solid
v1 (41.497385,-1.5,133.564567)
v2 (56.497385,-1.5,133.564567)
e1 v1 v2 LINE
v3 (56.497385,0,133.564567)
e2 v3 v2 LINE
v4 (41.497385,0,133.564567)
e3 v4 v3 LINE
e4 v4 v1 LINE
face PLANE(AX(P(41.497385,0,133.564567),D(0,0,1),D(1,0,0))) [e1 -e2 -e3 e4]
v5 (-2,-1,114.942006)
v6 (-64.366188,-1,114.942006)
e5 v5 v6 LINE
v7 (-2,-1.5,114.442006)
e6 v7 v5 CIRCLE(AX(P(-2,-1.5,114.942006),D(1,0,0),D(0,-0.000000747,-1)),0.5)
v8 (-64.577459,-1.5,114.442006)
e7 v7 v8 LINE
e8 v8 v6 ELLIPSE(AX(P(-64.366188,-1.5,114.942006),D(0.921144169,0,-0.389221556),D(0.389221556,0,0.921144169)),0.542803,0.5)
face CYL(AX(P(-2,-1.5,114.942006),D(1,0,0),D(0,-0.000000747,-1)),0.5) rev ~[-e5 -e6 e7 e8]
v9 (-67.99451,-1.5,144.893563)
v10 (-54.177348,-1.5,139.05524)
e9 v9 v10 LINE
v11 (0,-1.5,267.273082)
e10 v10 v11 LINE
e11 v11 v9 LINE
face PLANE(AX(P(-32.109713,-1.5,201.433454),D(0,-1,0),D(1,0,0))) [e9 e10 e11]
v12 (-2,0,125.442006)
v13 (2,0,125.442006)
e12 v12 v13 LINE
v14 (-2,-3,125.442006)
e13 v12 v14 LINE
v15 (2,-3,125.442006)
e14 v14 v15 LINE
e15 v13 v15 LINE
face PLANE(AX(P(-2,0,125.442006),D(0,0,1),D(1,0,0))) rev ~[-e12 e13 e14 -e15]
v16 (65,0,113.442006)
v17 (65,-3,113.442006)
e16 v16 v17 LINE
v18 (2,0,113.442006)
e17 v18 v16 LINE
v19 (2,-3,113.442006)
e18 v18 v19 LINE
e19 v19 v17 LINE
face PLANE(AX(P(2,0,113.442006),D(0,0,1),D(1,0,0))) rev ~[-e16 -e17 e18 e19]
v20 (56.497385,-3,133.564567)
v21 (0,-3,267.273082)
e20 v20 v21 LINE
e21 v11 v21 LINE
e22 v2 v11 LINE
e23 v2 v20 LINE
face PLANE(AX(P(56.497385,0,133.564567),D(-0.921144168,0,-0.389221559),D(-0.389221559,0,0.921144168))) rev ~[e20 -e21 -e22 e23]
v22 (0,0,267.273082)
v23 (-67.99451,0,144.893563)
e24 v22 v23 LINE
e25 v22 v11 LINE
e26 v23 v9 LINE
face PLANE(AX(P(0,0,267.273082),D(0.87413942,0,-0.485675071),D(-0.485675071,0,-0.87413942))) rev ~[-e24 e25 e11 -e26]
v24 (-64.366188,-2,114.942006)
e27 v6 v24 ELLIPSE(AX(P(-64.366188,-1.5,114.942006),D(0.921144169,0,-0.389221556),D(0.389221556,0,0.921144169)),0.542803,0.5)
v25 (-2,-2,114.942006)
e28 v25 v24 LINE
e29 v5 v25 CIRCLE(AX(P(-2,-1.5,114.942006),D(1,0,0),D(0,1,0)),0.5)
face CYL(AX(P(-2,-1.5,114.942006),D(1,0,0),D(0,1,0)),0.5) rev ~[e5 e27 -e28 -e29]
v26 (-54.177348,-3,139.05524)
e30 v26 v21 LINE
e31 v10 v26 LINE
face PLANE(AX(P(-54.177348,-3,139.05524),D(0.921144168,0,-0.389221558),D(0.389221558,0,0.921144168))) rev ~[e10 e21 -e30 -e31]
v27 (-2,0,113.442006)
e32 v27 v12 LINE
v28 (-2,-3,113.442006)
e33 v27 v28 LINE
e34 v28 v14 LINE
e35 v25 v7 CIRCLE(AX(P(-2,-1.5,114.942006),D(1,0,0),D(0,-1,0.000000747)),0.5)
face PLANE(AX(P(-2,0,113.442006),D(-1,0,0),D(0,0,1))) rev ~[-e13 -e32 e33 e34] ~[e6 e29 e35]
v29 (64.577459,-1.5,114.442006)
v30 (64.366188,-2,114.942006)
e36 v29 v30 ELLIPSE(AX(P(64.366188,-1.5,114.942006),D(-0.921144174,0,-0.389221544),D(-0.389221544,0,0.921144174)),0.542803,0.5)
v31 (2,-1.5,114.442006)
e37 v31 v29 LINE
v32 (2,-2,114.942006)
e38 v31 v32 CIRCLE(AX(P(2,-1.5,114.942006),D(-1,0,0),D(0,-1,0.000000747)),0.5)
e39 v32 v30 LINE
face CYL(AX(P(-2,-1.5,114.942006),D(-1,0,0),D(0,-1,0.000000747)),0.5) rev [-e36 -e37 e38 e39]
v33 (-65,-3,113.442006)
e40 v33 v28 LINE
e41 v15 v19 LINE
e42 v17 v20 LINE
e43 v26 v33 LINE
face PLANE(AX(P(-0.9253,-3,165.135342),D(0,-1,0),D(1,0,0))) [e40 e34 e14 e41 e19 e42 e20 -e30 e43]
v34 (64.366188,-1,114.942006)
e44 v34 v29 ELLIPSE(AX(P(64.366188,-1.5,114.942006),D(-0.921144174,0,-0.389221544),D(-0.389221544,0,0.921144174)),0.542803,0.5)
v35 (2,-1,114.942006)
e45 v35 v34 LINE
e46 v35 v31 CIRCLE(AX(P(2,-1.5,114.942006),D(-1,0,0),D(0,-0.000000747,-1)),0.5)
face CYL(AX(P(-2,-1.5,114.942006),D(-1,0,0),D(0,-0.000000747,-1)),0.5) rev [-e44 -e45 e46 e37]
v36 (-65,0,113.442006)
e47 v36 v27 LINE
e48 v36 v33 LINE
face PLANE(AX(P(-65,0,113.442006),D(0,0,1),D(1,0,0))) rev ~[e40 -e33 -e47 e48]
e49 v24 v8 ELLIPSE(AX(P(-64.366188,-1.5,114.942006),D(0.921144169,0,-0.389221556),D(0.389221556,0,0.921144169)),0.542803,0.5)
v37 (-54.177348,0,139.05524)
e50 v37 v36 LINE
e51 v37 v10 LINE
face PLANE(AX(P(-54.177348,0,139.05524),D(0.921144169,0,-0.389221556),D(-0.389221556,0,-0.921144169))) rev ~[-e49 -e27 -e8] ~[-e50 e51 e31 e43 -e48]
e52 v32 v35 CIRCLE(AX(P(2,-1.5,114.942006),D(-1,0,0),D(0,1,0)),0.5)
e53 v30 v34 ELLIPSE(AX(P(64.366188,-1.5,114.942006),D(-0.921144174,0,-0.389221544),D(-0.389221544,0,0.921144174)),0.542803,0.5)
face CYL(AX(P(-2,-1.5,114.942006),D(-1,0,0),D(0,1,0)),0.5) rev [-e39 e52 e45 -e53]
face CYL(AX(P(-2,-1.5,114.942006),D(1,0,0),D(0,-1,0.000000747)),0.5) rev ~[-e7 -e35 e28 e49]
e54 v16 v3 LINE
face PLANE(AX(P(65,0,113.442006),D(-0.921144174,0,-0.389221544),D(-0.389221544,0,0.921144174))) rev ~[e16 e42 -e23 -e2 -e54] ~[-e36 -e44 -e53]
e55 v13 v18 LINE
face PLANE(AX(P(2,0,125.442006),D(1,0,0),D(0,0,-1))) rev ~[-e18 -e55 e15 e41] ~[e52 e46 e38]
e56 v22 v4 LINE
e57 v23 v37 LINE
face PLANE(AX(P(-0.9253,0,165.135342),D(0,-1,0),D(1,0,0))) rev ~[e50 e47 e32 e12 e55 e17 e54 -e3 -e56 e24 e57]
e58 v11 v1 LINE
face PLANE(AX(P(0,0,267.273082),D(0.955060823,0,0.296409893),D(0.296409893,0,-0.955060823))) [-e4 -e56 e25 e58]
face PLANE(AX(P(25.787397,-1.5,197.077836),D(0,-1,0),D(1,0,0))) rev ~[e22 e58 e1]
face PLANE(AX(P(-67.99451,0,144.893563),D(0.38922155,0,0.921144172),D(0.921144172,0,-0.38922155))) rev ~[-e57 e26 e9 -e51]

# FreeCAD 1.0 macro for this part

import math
import FreeCAD as App
import Part
import Sketcher

V = App.Vector
Q = App.Units.Quantity

doc = App.newDocument("Part")
params = doc.addObject("Spreadsheet::Sheet", "Params")
for row, (alias, value) in enumerate([
    ("sketch1_width", "63 mm"),
    ("sketch1_width2", "4 mm"),
    ("sketch1_height", "12 mm"),
    ("sketch1_length", "140 mm"),
    ("sketch1_length2", "14.999999 mm"),
    ("pad1_length", "3 mm"),
    ("sketch2_radius", "0.5 mm"),
    ("sketch3_width", "15 mm"),
    ("sketch3_length", "140 mm"),
    ("pocket2_length", "1.5 mm"),
    ("sketch4_length", "14.999999 mm"),
    ("sketch4_length2", "140 mm"),
    ("pocket3_length", "1.5 mm"),
], start=1):
    params.set(f"A{row}", alias)
    params.set(f"B{row}", "=" + value)
    params.setAlias(f"B{row}", alias)

body = doc.addObject("PartDesign::Body", "Body")

sketch1 = doc.addObject("Sketcher::SketchObject", "Sketch")
body.addObject(sketch1)
sketch1.AttachmentSupport = (doc.XZ_Plane, [""])
sketch1.MapMode = "FlatFace"
sketch1.addGeometry(Part.LineSegment(V(-54.2, 139.1, 0), V(-65, 113.4, 0)), False)
sketch1.addGeometry(Part.LineSegment(V(-65, 113.4, 0), V(-2, 113.4, 0)), False)
sketch1.addGeometry(Part.LineSegment(V(-2, 113.4, 0), V(-2, 125.4, 0)), False)
sketch1.addGeometry(Part.LineSegment(V(-2, 125.4, 0), V(2, 125.4, 0)), False)
sketch1.addGeometry(Part.LineSegment(V(2, 125.4, 0), V(2, 113.4, 0)), False)
sketch1.addGeometry(Part.LineSegment(V(2, 113.4, 0), V(65, 113.4, 0)), False)
sketch1.addGeometry(Part.LineSegment(V(65, 113.4, 0), V(56.5, 133.6, 0)), False)
sketch1.addGeometry(Part.LineSegment(V(56.5, 133.6, 0), V(0, 267.3, 0)), False)
sketch1.addGeometry(Part.LineSegment(V(0, 267.3, 0), V(-68, 144.9, 0)), False)
sketch1.addGeometry(Part.LineSegment(V(-68, 144.9, 0), V(-54.2, 139.1, 0)), False)
sketch1.addConstraint(Sketcher.Constraint("Coincident", 0, 2, 1, 1))
sketch1.addConstraint(Sketcher.Constraint("Coincident", 1, 2, 2, 1))
sketch1.addConstraint(Sketcher.Constraint("Coincident", 2, 2, 3, 1))
sketch1.addConstraint(Sketcher.Constraint("Coincident", 3, 2, 4, 1))
sketch1.addConstraint(Sketcher.Constraint("Coincident", 4, 2, 5, 1))
sketch1.addConstraint(Sketcher.Constraint("Coincident", 5, 2, 6, 1))
sketch1.addConstraint(Sketcher.Constraint("Coincident", 6, 2, 7, 1))
sketch1.addConstraint(Sketcher.Constraint("Coincident", 7, 2, 8, 1))
sketch1.addConstraint(Sketcher.Constraint("Coincident", 8, 2, 9, 1))
sketch1.addConstraint(Sketcher.Constraint("Coincident", 9, 2, 0, 1))
sketch1.addConstraint(Sketcher.Constraint("Horizontal", 1))
sketch1.addConstraint(Sketcher.Constraint("Vertical", 2))
sketch1.addConstraint(Sketcher.Constraint("Horizontal", 3))
sketch1.addConstraint(Sketcher.Constraint("Vertical", 4))
sketch1.addConstraint(Sketcher.Constraint("Horizontal", 5))
sketch1.addConstraint(Sketcher.Constraint("Symmetric", 1, 2, 4, 2, -2))
sketch1.addConstraint(Sketcher.Constraint("PointOnObject", 7, 2, -2))
sketch1.addConstraint(Sketcher.Constraint("Parallel", 6, 7))
sketch1.addConstraint(Sketcher.Constraint("Perpendicular", 0, 9))
sketch1.addConstraint(Sketcher.Constraint("Equal", 1, 5))
sketch1.addConstraint(Sketcher.Constraint("DistanceX", 1, 1, 1, 2, Q("63 mm")))
sketch1.addConstraint(Sketcher.Constraint("DistanceX", 3, 1, 3, 2, Q("4 mm")))
sketch1.addConstraint(Sketcher.Constraint("DistanceY", 2, 1, 2, 2, Q("12 mm")))
sketch1.addConstraint(Sketcher.Constraint("Distance", 8, Q("140 mm")))
sketch1.addConstraint(Sketcher.Constraint("Distance", 9, Q("14.999999 mm")))
sketch1.addConstraint(Sketcher.Constraint("Distance", 0, Q("27.805891 mm")))
sketch1.addConstraint(Sketcher.Constraint("Distance", 6, Q("21.845181 mm")))
sketch1.addConstraint(Sketcher.Constraint("Distance", 7, Q("145.154819 mm")))
sketch1.addConstraint(Sketcher.Constraint("DistanceY", -1, 1, 7, 2, Q("267.273082 mm")))
sketch1.setExpression("Constraints[20]", "Params.sketch1_width")
sketch1.setExpression("Constraints[21]", "Params.sketch1_width2")
sketch1.setExpression("Constraints[22]", "Params.sketch1_height")
sketch1.setExpression("Constraints[23]", "Params.sketch1_length")
sketch1.setExpression("Constraints[24]", "Params.sketch1_length2")
pad1 = doc.addObject("PartDesign::Pad", "Pad")
body.addObject(pad1)
pad1.Profile = sketch1
pad1.setExpression("Length", "Params.pad1_length")

sketch2 = doc.addObject("Sketcher::SketchObject", "Sketch001")
body.addObject(sketch2)
sketch2.AttachmentSupport = (doc.YZ_Plane, [""])
sketch2.MapMode = "FlatFace"
sketch2.AttachmentOffset = App.Placement(V(0, 0, -2), App.Rotation())
sketch2.addGeometry(Part.ArcOfCircle(Part.Circle(V(-1.5, 114.94, 0), V(0, 0, 1), 0.5), math.radians(-90), math.radians(0)), False)
sketch2.addGeometry(Part.ArcOfCircle(Part.Circle(V(-1.5, 114.94, 0), V(0, 0, 1), 0.5), math.radians(0), math.radians(180)), False)
sketch2.addGeometry(Part.ArcOfCircle(Part.Circle(V(-1.5, 114.94, 0), V(0, 0, 1), 0.5), math.radians(180), math.radians(270)), False)
sketch2.addConstraint(Sketcher.Constraint("Tangent", 0, 2, 1, 1))
sketch2.addConstraint(Sketcher.Constraint("Tangent", 1, 2, 2, 1))
sketch2.addConstraint(Sketcher.Constraint("Tangent", 2, 2, 0, 1))
sketch2.addConstraint(Sketcher.Constraint("Horizontal", 2, 3, 0, 2))
sketch2.addConstraint(Sketcher.Constraint("Horizontal", 0, 2, 1, 2))
sketch2.addConstraint(Sketcher.Constraint("Vertical", 1, 3, 2, 2))
sketch2.addConstraint(Sketcher.Constraint("Radius", 0, Q("0.5 mm")))
sketch2.addConstraint(Sketcher.Constraint("DistanceX", 0, 2, -1, 1, Q("1 mm")))
sketch2.addConstraint(Sketcher.Constraint("DistanceY", -1, 1, 0, 3, Q("114.942006 mm")))
sketch2.setExpression("Constraints[6]", "Params.sketch2_radius")
pocket1 = doc.addObject("PartDesign::Pocket", "Pocket")
body.addObject(pocket1)
pocket1.Profile = sketch2
pocket1.Type = "ThroughAll"
pocket1.Midplane = True

sketch3 = doc.addObject("Sketcher::SketchObject", "Sketch002")
body.addObject(sketch3)
sketch3.AttachmentSupport = (doc.XZ_Plane, [""])
sketch3.MapMode = "FlatFace"
sketch3.addGeometry(Part.LineSegment(V(56, 134, 0), V(0, 267, 0)), False)
sketch3.addGeometry(Part.LineSegment(V(0, 267, 0), V(41, 134, 0)), False)
sketch3.addGeometry(Part.LineSegment(V(41, 134, 0), V(56, 134, 0)), False)
sketch3.addConstraint(Sketcher.Constraint("Coincident", 0, 2, 1, 1))
sketch3.addConstraint(Sketcher.Constraint("Coincident", 1, 2, 2, 1))
sketch3.addConstraint(Sketcher.Constraint("Coincident", 2, 2, 0, 1))
sketch3.addConstraint(Sketcher.Constraint("Horizontal", 2))
sketch3.addConstraint(Sketcher.Constraint("PointOnObject", 0, 2, -2))
sketch3.addConstraint(Sketcher.Constraint("DistanceX", 2, 1, 2, 2, Q("15 mm")))
sketch3.addConstraint(Sketcher.Constraint("Distance", 1, Q("140 mm")))
sketch3.addConstraint(Sketcher.Constraint("Distance", 0, Q("145.154819 mm")))
sketch3.addConstraint(Sketcher.Constraint("DistanceY", -1, 1, 0, 2, Q("267.273082 mm")))
sketch3.setExpression("Constraints[5]", "Params.sketch3_width")
sketch3.setExpression("Constraints[6]", "Params.sketch3_length")
pocket2 = doc.addObject("PartDesign::Pocket", "Pocket001")
body.addObject(pocket2)
pocket2.Profile = sketch3
pocket2.setExpression("Length", "Params.pocket2_length")
pocket2.Reversed = True

sketch4 = doc.addObject("Sketcher::SketchObject", "Sketch003")
body.addObject(sketch4)
sketch4.AttachmentSupport = (doc.XZ_Plane, [""])
sketch4.MapMode = "FlatFace"
sketch4.AttachmentOffset = App.Placement(V(0, 0, 3), App.Rotation())
sketch4.addGeometry(Part.LineSegment(V(-68, 145, 0), V(-54, 139, 0)), False)
sketch4.addGeometry(Part.LineSegment(V(-54, 139, 0), V(0, 267, 0)), False)
sketch4.addGeometry(Part.LineSegment(V(0, 267, 0), V(-68, 145, 0)), False)
sketch4.addConstraint(Sketcher.Constraint("Coincident", 0, 2, 1, 1))
sketch4.addConstraint(Sketcher.Constraint("Coincident", 1, 2, 2, 1))
sketch4.addConstraint(Sketcher.Constraint("Coincident", 2, 2, 0, 1))
sketch4.addConstraint(Sketcher.Constraint("PointOnObject", 1, 2, -2))
sketch4.addConstraint(Sketcher.Constraint("Perpendicular", 0, 1))
sketch4.addConstraint(Sketcher.Constraint("Distance", 0, Q("14.999999 mm")))
sketch4.addConstraint(Sketcher.Constraint("Distance", 2, Q("140 mm")))
sketch4.addConstraint(Sketcher.Constraint("DistanceX", 0, 2, -1, 1, Q("54.177348 mm")))
sketch4.addConstraint(Sketcher.Constraint("DistanceY", -1, 1, 0, 2, Q("139.05524 mm")))
sketch4.setExpression("Constraints[5]", "Params.sketch4_length")
sketch4.setExpression("Constraints[6]", "Params.sketch4_length2")
pocket3 = doc.addObject("PartDesign::Pocket", "Pocket002")
body.addObject(pocket3)
pocket3.Profile = sketch4
pocket3.setExpression("Length", "Params.pocket3_length")

doc.recompute()
